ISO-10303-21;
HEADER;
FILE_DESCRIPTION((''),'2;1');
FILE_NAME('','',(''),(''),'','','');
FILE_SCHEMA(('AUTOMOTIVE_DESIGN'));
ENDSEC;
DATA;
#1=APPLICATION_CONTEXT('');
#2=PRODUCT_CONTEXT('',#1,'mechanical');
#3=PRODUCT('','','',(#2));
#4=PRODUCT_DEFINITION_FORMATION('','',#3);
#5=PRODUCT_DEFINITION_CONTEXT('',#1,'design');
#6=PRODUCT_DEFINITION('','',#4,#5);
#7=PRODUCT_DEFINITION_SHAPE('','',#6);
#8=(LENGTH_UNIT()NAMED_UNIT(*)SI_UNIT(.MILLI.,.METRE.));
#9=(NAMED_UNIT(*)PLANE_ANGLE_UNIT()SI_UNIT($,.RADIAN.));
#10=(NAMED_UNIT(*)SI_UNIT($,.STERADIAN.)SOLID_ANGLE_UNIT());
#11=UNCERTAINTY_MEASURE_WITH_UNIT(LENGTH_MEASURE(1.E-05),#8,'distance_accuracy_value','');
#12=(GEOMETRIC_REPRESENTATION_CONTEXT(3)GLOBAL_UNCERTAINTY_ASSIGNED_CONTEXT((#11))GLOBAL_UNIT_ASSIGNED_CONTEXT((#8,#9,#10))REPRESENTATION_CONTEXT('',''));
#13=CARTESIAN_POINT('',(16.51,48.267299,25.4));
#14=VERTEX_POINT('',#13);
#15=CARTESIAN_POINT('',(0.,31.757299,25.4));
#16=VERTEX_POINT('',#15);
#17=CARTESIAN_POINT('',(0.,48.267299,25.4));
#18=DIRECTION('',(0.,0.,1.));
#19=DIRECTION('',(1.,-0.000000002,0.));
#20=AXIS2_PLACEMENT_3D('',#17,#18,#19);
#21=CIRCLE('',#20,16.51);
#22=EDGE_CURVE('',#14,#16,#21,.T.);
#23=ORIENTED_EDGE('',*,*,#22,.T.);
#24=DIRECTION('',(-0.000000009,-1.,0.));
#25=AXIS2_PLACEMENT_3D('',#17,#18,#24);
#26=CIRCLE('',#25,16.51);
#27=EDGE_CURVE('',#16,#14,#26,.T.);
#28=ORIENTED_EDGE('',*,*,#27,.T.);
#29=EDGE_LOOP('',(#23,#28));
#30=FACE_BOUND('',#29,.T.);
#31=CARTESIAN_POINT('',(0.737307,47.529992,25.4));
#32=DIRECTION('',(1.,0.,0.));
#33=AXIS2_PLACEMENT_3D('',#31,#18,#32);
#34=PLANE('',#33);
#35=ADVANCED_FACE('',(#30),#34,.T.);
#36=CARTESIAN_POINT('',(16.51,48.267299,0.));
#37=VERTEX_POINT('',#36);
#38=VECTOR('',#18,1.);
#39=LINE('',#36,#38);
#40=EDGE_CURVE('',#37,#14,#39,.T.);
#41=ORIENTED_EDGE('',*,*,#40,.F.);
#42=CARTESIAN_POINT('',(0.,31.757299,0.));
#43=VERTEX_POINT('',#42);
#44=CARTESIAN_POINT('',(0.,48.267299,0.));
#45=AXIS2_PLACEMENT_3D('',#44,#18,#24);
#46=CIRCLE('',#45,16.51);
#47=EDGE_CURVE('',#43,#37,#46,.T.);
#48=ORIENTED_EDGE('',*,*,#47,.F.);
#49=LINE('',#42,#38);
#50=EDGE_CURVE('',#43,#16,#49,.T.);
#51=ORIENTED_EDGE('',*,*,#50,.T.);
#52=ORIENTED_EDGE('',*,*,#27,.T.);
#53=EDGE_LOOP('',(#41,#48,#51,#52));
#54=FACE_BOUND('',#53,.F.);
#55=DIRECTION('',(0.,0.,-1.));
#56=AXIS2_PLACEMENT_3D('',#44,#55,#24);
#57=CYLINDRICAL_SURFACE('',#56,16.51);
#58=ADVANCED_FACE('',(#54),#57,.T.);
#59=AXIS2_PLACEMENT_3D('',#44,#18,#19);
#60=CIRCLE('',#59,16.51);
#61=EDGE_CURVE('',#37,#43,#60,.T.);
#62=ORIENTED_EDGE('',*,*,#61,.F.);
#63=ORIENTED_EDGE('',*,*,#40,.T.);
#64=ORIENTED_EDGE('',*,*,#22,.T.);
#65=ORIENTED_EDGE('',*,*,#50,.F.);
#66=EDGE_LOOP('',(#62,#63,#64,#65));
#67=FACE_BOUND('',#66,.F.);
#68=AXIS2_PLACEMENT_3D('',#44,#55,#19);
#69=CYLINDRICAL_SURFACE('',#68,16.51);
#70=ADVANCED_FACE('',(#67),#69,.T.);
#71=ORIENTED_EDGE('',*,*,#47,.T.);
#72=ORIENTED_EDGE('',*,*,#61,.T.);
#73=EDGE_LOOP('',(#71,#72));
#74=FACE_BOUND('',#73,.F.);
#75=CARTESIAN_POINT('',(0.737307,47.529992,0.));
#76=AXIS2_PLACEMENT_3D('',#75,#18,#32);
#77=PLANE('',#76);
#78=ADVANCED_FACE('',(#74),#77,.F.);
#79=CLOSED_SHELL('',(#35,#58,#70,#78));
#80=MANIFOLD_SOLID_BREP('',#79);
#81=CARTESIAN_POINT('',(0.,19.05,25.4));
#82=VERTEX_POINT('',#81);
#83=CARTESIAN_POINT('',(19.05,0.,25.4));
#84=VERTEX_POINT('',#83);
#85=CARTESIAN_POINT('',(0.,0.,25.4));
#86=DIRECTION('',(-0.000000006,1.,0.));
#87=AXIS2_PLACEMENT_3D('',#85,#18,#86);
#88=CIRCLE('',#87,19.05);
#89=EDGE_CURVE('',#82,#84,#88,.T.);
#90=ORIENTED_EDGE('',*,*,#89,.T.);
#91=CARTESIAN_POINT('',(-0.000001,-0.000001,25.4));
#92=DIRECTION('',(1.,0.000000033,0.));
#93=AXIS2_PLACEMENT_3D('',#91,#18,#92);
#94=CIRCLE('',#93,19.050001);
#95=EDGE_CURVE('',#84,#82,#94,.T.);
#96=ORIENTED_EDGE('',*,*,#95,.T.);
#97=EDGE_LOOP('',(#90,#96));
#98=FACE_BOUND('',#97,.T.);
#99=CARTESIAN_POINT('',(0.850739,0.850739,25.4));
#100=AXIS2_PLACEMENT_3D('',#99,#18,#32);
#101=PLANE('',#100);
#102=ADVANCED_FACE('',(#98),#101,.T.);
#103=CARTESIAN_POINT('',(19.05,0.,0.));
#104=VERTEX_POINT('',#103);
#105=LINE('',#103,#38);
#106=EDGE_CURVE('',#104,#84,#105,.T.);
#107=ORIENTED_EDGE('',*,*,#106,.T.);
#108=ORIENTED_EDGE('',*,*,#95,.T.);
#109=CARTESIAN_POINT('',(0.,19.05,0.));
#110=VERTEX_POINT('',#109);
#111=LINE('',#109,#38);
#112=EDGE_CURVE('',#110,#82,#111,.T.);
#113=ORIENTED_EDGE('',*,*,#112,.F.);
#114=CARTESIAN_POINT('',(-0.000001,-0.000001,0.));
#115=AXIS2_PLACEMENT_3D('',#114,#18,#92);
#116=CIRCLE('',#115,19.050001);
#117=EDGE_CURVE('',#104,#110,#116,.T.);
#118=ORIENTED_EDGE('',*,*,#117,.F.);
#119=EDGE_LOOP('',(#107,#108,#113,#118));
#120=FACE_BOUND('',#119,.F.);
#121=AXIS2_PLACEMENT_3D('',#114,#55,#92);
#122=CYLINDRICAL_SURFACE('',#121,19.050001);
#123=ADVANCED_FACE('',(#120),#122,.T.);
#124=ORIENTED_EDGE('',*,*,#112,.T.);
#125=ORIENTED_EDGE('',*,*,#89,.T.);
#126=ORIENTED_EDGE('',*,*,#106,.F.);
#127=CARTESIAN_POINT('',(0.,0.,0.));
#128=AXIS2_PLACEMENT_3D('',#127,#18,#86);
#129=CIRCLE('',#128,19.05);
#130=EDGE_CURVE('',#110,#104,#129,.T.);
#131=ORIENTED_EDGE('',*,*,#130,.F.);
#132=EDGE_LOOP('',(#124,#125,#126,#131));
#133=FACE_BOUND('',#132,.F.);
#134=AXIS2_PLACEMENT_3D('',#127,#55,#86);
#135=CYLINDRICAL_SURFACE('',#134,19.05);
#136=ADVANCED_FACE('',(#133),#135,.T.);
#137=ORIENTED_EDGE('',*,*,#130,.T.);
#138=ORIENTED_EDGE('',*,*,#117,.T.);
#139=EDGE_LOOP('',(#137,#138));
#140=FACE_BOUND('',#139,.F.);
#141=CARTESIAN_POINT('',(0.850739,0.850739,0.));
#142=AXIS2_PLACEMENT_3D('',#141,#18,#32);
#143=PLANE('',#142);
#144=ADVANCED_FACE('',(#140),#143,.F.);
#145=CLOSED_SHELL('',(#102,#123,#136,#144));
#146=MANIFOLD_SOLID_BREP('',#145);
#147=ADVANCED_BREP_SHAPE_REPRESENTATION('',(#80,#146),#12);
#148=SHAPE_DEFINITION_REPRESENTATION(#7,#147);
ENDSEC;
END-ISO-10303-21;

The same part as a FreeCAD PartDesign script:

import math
import FreeCAD as App
import Part
import Sketcher

V = App.Vector
Q = App.Units.Quantity

doc = App.newDocument("Part")
body = doc.addObject("PartDesign::Body", "Body")
body.AllowCompound = True

sketch1 = body.newObject("Sketcher::SketchObject", "Sketch")
sketch1.AttachmentSupport = (doc.getObject("XY_Plane"), [""])
sketch1.MapMode = "FlatFace"
sketch1.addGeometry([
    Part.ArcOfCircle(Part.Circle(V(0, 0, 0), V(0, 0, 1), 19), math.radians(90), math.radians(360)),
    Part.ArcOfCircle(Part.Circle(V(0, 0, 0), V(0, 0, 1), 19), math.radians(0), math.radians(90)),
    Part.ArcOfCircle(Part.Circle(V(0, 48, 0), V(0, 0, 1), 17), math.radians(0), math.radians(270)),
    Part.ArcOfCircle(Part.Circle(V(0, 48, 0), V(0, 0, 1), 17), math.radians(-90), math.radians(0)),
], False)
sketch1.addConstraint([
    Sketcher.Constraint("Tangent", 0, 1, 1, 2),
    Sketcher.Constraint("Coincident", 1, 1, 0, 2),
    Sketcher.Constraint("Tangent", 2, 1, 3, 2),
    Sketcher.Constraint("Coincident", 3, 1, 2, 2),
    Sketcher.Constraint("Coincident", 0, 3, -1, 1),
    Sketcher.Constraint("PointOnObject", 2, 3, -2),
    Sketcher.Constraint("PointOnObject", 0, 1, -2),
    Sketcher.Constraint("PointOnObject", 1, 1, -1),
    Sketcher.Constraint("PointOnObject", 3, 1, -2),
    Sketcher.Constraint("Horizontal", 3, 3, 2, 1),
    Sketcher.Constraint("Radius", 0, Q("0.75 in")),
    Sketcher.Constraint("Radius", 2, Q("0.65 in")),
    Sketcher.Constraint("DistanceY", -1, 1, 2, 3, 48.267299),
])
pad1 = body.newObject("PartDesign::Pad", "Pad")
pad1.Profile = sketch1
pad1.Length = Q("1 in")

doc.recompute()
